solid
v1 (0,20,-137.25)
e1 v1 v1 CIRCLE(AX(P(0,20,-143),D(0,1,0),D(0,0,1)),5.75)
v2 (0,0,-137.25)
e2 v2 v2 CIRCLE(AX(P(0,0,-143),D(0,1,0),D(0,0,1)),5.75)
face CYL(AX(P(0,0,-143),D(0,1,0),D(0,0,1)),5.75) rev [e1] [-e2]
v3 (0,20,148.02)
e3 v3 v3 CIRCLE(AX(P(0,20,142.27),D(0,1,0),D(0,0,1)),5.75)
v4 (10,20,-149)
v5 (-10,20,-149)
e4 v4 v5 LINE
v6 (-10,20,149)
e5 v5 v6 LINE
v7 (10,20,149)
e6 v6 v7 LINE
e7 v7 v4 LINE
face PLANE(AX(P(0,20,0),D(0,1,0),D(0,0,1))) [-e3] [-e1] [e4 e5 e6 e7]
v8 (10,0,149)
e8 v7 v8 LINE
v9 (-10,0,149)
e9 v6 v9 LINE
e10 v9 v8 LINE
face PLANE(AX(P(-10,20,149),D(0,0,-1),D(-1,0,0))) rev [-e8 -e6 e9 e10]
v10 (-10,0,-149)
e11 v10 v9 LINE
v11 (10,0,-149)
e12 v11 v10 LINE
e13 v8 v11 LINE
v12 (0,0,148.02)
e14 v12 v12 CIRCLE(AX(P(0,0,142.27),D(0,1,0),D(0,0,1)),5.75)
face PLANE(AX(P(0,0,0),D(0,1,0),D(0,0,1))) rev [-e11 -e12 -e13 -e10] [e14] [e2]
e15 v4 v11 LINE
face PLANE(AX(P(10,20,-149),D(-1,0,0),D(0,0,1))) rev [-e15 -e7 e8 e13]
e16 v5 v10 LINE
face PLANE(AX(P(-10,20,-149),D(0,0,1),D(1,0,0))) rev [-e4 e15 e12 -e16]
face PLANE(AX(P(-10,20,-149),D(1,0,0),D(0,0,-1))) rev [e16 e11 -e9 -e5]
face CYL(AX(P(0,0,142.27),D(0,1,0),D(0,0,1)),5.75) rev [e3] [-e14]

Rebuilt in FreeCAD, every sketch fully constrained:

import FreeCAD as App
import Part
import Sketcher


def add_polygon(sketch, points):
    """Adds a closed chain of lines whose ends are joined by coincident constraints."""
    first, n = sketch.GeometryCount, len(points)
    for a, b in zip(points, points[1:] + points[:1]):
        sketch.addGeometry(Part.LineSegment(App.Vector(*a, 0), App.Vector(*b, 0)), False)
    for i in range(n):
        sketch.addConstraint(Sketcher.Constraint("Coincident", first + i, 2, first + (i + 1) % n, 1))

doc = App.newDocument("Part")
body = doc.addObject("PartDesign::Body", "Body")

sketch1 = body.newObject("Sketcher::SketchObject", "Sketch")
sketch1.AttachmentSupport = (doc.getObject("XZ_Plane"), [""])
sketch1.MapMode = "FlatFace"
add_polygon(sketch1, [(-10, -149), (-10, 149), (10, 149), (10, -149)])
sketch1.addConstraint(Sketcher.Constraint("Vertical", 0))
sketch1.addConstraint(Sketcher.Constraint("Horizontal", 1))
sketch1.addConstraint(Sketcher.Constraint("Vertical", 2))
sketch1.addConstraint(Sketcher.Constraint("Horizontal", 3))
sketch1.addConstraint(Sketcher.Constraint("Symmetric", 0, 2, 2, 2, -1, 1))
sketch1.addConstraint(Sketcher.Constraint("DistanceX", 1, 1, 1, 2, 20.0))
sketch1.addConstraint(Sketcher.Constraint("DistanceY", 0, 1, 0, 2, 298.0))
pad1 = body.newObject("PartDesign::Pad", "Pad")
pad1.Profile = sketch1
pad1.Length = 20
pad1.Reversed = True

sketch2 = body.newObject("Sketcher::SketchObject", "Sketch001")
sketch2.AttachmentSupport = (doc.getObject("XZ_Plane"), [""])
sketch2.MapMode = "FlatFace"
sketch2.AttachmentOffset = App.Placement(App.Vector(0, 0, -20), App.Rotation())
sketch2.addGeometry(Part.Circle(App.Vector(0, -143, 0), App.Vector(0, 0, 1), 6), False)
sketch2.addGeometry(Part.Circle(App.Vector(0, 142, 0), App.Vector(0, 0, 1), 6), False)
sketch2.addConstraint(Sketcher.Constraint("Equal", 0, 1))
sketch2.addConstraint(Sketcher.Constraint("PointOnObject", 0, 3, -2))
sketch2.addConstraint(Sketcher.Constraint("PointOnObject", 1, 3, -2))
sketch2.addConstraint(Sketcher.Constraint("Diameter", 0, 11.5))
sketch2.addConstraint(Sketcher.Constraint("DistanceY", 0, 3, -1, 1, 143.0))
sketch2.addConstraint(Sketcher.Constraint("DistanceY", -1, 1, 1, 3, 142.27))
pocket1 = body.newObject("PartDesign::Pocket", "Pocket")
pocket1.Profile = sketch2
pocket1.Type = "ThroughAll"
pocket1.Reversed = True

doc.recompute()
